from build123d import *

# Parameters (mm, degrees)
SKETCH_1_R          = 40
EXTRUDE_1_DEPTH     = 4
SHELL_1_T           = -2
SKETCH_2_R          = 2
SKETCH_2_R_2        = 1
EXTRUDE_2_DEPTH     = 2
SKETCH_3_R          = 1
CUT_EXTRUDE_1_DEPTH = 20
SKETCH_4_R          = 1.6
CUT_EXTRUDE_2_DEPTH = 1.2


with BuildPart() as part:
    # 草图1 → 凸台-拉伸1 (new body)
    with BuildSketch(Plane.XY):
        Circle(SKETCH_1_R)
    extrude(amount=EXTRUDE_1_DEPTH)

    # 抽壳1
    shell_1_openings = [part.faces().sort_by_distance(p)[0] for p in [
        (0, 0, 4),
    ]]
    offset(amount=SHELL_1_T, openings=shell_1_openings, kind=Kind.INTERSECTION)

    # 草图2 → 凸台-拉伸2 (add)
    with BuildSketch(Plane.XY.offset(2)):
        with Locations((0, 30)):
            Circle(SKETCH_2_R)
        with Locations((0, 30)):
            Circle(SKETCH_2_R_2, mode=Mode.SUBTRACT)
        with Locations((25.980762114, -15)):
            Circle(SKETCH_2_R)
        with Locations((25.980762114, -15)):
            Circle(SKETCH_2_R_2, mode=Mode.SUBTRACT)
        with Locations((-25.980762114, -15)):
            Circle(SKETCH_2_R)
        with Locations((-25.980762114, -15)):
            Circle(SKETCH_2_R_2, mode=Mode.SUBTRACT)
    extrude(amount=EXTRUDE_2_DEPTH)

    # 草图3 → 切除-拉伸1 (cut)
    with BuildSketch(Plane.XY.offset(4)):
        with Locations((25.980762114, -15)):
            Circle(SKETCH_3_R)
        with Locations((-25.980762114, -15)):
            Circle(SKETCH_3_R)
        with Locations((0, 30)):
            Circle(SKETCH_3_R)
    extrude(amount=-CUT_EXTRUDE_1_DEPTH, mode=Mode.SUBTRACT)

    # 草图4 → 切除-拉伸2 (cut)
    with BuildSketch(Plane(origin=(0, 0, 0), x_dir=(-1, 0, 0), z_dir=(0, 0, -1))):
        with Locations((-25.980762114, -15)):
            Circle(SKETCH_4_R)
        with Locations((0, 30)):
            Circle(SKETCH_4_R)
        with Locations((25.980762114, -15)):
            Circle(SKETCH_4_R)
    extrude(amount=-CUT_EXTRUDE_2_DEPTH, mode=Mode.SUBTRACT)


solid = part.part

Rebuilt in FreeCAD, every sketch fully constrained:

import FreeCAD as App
import Part
import Sketcher


def faces_at(feature, points):
    """Names of the faces that lie closest to the given points."""
    faces = feature.Shape.Faces
    near = lambda p: min(range(len(faces)), key=lambda i: faces[i].distToShape(Part.Vertex(*p))[0])
    return sorted({f"Face{near(p) + 1}" for p in points})

doc = App.newDocument("Part")
params = doc.addObject("Spreadsheet::Sheet", "Params")
for row, (alias, value) in enumerate([
    ("sketch1_diameter", "80 mm"),
    ("pad1_length", "4 mm"),
    ("thickness_wall", "2 mm"),
    ("sketch2_diameter", "4 mm"),
    ("sketch2_diameter2", "2 mm"),
    ("pad2_length", "2 mm"),
    ("sketch3_diameter", "2 mm"),
    ("pocket1_length", "20 mm"),
    ("sketch4_diameter", "3.2 mm"),
    ("pocket2_length", "1.2 mm"),
], start=1):
    params.set(f"A{row}", alias)
    params.set(f"B{row}", "=" + value)
    params.setAlias(f"B{row}", alias)

body = doc.addObject("PartDesign::Body", "Body")

# Sketch on XY plane
sketch1 = body.newObject("Sketcher::SketchObject", "Sketch")
sketch1.AttachmentSupport = (doc.getObject("XY_Plane"), [""])
sketch1.MapMode = "FlatFace"
sketch1.addGeometry(Part.Circle(App.Vector(0, 0, 0), App.Vector(0, 0, 1), 40), False)
sketch1.addConstraint(Sketcher.Constraint("Coincident", 0, 3, -1, 1))
sketch1.addConstraint(Sketcher.Constraint("Diameter", 0, 80.0))
sketch1.setExpression("Constraints[1]", "Params.sketch1_diameter")
pad1 = body.newObject("PartDesign::Pad", "Pad")
pad1.Profile = sketch1
pad1.setExpression("Length", "Params.pad1_length")
doc.recompute()

thickness = body.newObject("PartDesign::Thickness", "Thickness")
thickness.Base = (pad1, faces_at(pad1, [(0, 0, 4)]))
thickness.setExpression("Value", "Params.thickness_wall")
thickness.Reversed = True
thickness.Join = "Intersection"

# Sketch on XY plane
sketch2 = body.newObject("Sketcher::SketchObject", "Sketch001")
sketch2.AttachmentSupport = (doc.getObject("XY_Plane"), [""])
sketch2.MapMode = "FlatFace"
sketch2.AttachmentOffset = App.Placement(App.Vector(0, 0, 2), App.Rotation())
sketch2.addGeometry(Part.Circle(App.Vector(0, 30, 0), App.Vector(0, 0, 1), 2), False)
sketch2.addGeometry(Part.Circle(App.Vector(0, 30, 0), App.Vector(0, 0, 1), 1), False)
sketch2.addGeometry(Part.Circle(App.Vector(26, -15, 0), App.Vector(0, 0, 1), 2), False)
sketch2.addGeometry(Part.Circle(App.Vector(26, -15, 0), App.Vector(0, 0, 1), 1), False)
sketch2.addGeometry(Part.Circle(App.Vector(-26, -15, 0), App.Vector(0, 0, 1), 2), False)
sketch2.addGeometry(Part.Circle(App.Vector(-26, -15, 0), App.Vector(0, 0, 1), 1), False)
sketch2.addConstraint(Sketcher.Constraint("Coincident", 1, 3, 0, 3))
sketch2.addConstraint(Sketcher.Constraint("Coincident", 3, 3, 2, 3))
sketch2.addConstraint(Sketcher.Constraint("Coincident", 5, 3, 4, 3))
sketch2.addConstraint(Sketcher.Constraint("Equal", 0, 2))
sketch2.addConstraint(Sketcher.Constraint("Equal", 1, 3))
sketch2.addConstraint(Sketcher.Constraint("Equal", 2, 4))
sketch2.addConstraint(Sketcher.Constraint("Equal", 3, 5))
sketch2.addConstraint(Sketcher.Constraint("Symmetric", 2, 3, 4, 3, -2))
sketch2.addConstraint(Sketcher.Constraint("PointOnObject", 0, 3, -2))
sketch2.addConstraint(Sketcher.Constraint("Diameter", 0, 4.0))
sketch2.addConstraint(Sketcher.Constraint("Diameter", 1, 2.0))
sketch2.addConstraint(Sketcher.Constraint("DistanceY", -1, 1, 0, 3, 30.0))
sketch2.addConstraint(Sketcher.Constraint("DistanceY", 2, 3, -1, 1, 15.0))
sketch2.addConstraint(Sketcher.Constraint("DistanceX", -1, 1, 2, 3, 25.980762))
sketch2.setExpression("Constraints[9]", "Params.sketch2_diameter")
sketch2.setExpression("Constraints[10]", "Params.sketch2_diameter2")
pad2 = body.newObject("PartDesign::Pad", "Pad001")
pad2.Profile = sketch2
pad2.setExpression("Length", "Params.pad2_length")

# Sketch on XY plane
sketch3 = body.newObject("Sketcher::SketchObject", "Sketch002")
sketch3.AttachmentSupport = (doc.getObject("XY_Plane"), [""])
sketch3.MapMode = "FlatFace"
sketch3.AttachmentOffset = App.Placement(App.Vector(0, 0, 4), App.Rotation())
sketch3.addGeometry(Part.Circle(App.Vector(26, -15, 0), App.Vector(0, 0, 1), 1), False)
sketch3.addGeometry(Part.Circle(App.Vector(-26, -15, 0), App.Vector(0, 0, 1), 1), False)
sketch3.addGeometry(Part.Circle(App.Vector(0, 30, 0), App.Vector(0, 0, 1), 1), False)
sketch3.addConstraint(Sketcher.Constraint("Equal", 0, 1))
sketch3.addConstraint(Sketcher.Constraint("Equal", 1, 2))
sketch3.addConstraint(Sketcher.Constraint("Symmetric", 0, 3, 1, 3, -2))
sketch3.addConstraint(Sketcher.Constraint("PointOnObject", 2, 3, -2))
sketch3.addConstraint(Sketcher.Constraint("Diameter", 0, 2.0))
sketch3.addConstraint(Sketcher.Constraint("DistanceY", 0, 3, -1, 1, 15.0))
sketch3.addConstraint(Sketcher.Constraint("DistanceY", -1, 1, 2, 3, 30.0))
sketch3.addConstraint(Sketcher.Constraint("DistanceX", -1, 1, 0, 3, 25.980762))
sketch3.setExpression("Constraints[4]", "Params.sketch3_diameter")
pocket1 = body.newObject("PartDesign::Pocket", "Pocket")
pocket1.Profile = sketch3
pocket1.setExpression("Length", "Params.pocket1_length")

# Sketch on XY plane
sketch4 = body.newObject("Sketcher::SketchObject", "Sketch003")
sketch4.AttachmentSupport = (doc.getObject("XY_Plane"), [""])
sketch4.MapMode = "FlatFace"
sketch4.addGeometry(Part.Circle(App.Vector(26, -15, 0), App.Vector(0, 0, 1), 1.6), False)
sketch4.addGeometry(Part.Circle(App.Vector(0, 30, 0), App.Vector(0, 0, 1), 1.6), False)
sketch4.addGeometry(Part.Circle(App.Vector(-26, -15, 0), App.Vector(0, 0, 1), 1.6), False)
sketch4.addConstraint(Sketcher.Constraint("Equal", 0, 1))
sketch4.addConstraint(Sketcher.Constraint("Equal", 1, 2))
sketch4.addConstraint(Sketcher.Constraint("Symmetric", 0, 3, 2, 3, -2))
sketch4.addConstraint(Sketcher.Constraint("PointOnObject", 1, 3, -2))
sketch4.addConstraint(Sketcher.Constraint("Diameter", 0, 3.2))
sketch4.addConstraint(Sketcher.Constraint("DistanceY", 0, 3, -1, 1, 15.0))
sketch4.addConstraint(Sketcher.Constraint("DistanceY", -1, 1, 1, 3, 30.0))
sketch4.addConstraint(Sketcher.Constraint("DistanceX", -1, 1, 0, 3, 25.980762))
sketch4.setExpression("Constraints[4]", "Params.sketch4_diameter")
pocket2 = body.newObject("PartDesign::Pocket", "Pocket001")
pocket2.Profile = sketch4
pocket2.setExpression("Length", "Params.pocket2_length")
pocket2.Reversed = True

doc.recompute()
